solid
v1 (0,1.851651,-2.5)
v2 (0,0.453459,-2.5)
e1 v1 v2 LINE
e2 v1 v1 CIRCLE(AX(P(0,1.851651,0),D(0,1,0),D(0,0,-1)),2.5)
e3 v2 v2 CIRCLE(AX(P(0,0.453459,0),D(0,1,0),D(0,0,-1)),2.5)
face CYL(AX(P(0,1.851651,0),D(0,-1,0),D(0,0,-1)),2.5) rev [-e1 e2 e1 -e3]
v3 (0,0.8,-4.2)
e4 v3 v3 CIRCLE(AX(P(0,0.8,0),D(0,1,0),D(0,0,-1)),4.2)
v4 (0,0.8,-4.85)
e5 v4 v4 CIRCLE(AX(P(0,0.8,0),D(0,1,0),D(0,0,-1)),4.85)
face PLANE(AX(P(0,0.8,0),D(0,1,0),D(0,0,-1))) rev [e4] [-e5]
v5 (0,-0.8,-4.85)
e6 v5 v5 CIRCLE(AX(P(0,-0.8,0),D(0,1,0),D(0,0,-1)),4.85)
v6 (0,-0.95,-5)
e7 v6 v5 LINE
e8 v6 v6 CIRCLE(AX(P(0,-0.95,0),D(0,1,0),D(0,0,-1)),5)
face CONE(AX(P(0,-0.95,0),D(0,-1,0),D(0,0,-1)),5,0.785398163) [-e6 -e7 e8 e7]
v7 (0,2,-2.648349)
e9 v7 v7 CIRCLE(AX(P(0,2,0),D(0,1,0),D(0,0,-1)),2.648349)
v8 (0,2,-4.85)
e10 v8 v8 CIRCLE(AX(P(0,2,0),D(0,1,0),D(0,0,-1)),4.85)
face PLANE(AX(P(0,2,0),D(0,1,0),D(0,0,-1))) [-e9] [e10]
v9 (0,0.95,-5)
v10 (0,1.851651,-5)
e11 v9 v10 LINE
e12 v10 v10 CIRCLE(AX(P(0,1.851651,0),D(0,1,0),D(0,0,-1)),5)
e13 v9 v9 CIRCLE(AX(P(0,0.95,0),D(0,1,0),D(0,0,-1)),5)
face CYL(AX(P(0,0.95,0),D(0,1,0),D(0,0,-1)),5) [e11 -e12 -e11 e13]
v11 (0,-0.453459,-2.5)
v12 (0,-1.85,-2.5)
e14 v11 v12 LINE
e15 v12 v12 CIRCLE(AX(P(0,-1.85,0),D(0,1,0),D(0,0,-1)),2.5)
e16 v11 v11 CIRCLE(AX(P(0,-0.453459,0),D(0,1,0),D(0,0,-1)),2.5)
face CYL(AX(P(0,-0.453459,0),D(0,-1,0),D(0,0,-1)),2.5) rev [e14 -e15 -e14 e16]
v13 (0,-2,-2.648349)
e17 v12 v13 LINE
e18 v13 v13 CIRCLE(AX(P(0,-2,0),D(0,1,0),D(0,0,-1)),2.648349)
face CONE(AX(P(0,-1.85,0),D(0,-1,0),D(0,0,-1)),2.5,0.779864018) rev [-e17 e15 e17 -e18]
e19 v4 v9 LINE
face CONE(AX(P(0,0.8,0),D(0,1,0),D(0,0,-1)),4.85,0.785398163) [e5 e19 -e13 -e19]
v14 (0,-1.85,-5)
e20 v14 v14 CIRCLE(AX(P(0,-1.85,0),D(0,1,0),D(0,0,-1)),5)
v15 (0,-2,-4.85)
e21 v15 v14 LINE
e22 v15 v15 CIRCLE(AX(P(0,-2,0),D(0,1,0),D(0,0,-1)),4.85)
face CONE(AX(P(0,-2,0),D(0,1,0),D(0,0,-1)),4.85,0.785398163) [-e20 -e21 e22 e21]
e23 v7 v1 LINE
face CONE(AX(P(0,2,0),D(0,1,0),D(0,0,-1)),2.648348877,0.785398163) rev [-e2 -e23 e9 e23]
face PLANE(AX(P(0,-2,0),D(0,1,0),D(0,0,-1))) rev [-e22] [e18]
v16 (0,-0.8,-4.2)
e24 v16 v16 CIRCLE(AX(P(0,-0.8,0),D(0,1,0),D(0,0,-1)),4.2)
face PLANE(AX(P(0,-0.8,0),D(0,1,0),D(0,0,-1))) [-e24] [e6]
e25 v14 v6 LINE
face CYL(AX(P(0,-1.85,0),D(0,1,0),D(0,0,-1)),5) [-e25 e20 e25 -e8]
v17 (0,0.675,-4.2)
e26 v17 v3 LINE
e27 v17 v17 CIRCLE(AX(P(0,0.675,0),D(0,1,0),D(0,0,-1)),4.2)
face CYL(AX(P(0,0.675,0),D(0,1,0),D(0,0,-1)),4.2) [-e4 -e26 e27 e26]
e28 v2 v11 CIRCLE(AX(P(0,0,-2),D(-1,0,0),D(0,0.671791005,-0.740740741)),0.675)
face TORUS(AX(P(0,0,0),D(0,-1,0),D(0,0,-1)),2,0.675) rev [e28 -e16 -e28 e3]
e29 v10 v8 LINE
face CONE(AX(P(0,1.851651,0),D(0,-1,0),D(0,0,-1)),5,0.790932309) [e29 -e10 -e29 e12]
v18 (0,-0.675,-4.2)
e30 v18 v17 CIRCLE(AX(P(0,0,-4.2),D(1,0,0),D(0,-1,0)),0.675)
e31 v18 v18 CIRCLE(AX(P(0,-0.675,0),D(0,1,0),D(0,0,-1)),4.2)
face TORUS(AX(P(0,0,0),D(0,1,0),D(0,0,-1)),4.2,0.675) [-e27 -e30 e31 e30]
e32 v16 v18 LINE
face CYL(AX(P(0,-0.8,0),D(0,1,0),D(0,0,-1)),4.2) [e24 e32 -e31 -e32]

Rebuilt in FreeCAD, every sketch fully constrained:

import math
import FreeCAD as App
import Part
import Sketcher
Q = App.Units.Quantity

doc = App.newDocument("Part")
params = doc.addObject("Spreadsheet::Sheet", "Params")
for row, (alias, value) in enumerate([
    ("sketch1_height", "0.9 mm"),
    ("sketch1_width", "0.65 mm"),
    ("revolution_angle", "360 deg"),
], start=1):
    params.set(f"A{row}", alias)
    params.set(f"B{row}", "=" + value)
    params.setAlias(f"B{row}", alias)

body = doc.addObject("PartDesign::Body", "Body")

sketch1 = body.newObject("Sketcher::SketchObject", "Sketch")
sketch1.AttachmentSupport = (doc.getObject("XY_Plane"), [""])
sketch1.MapMode = "FlatFace"
sketch1.addGeometry([
    Part.LineSegment(App.Vector(5, 0.95, 0), App.Vector(5, 1.85, 0)),
    Part.LineSegment(App.Vector(5, 1.85, 0), App.Vector(4.85, 2, 0)),
    Part.LineSegment(App.Vector(4.85, 2, 0), App.Vector(2.65, 2, 0)),
    Part.LineSegment(App.Vector(2.65, 2, 0), App.Vector(2.5, 1.85, 0)),
    Part.LineSegment(App.Vector(2.5, 1.85, 0), App.Vector(2.5, 0.45, 0)),
    Part.ArcOfCircle(Part.Circle(App.Vector(2, 0, 0), App.Vector(0, 0, 1), 0.68), math.radians(-42), math.radians(42)),
    Part.LineSegment(App.Vector(2.5, -0.45, 0), App.Vector(2.5, -1.85, 0)),
    Part.LineSegment(App.Vector(2.5, -1.85, 0), App.Vector(2.65, -2, 0)),
    Part.LineSegment(App.Vector(2.65, -2, 0), App.Vector(4.85, -2, 0)),
    Part.LineSegment(App.Vector(4.85, -2, 0), App.Vector(5, -1.85, 0)),
    Part.LineSegment(App.Vector(5, -1.85, 0), App.Vector(5, -0.95, 0)),
    Part.LineSegment(App.Vector(5, -0.95, 0), App.Vector(4.85, -0.8, 0)),
    Part.LineSegment(App.Vector(4.85, -0.8, 0), App.Vector(4.2, -0.8, 0)),
    Part.LineSegment(App.Vector(4.2, -0.8, 0), App.Vector(4.2, -0.68, 0)),
    Part.ArcOfCircle(Part.Circle(App.Vector(4.2, 0, 0), App.Vector(0, 0, 1), 0.68), math.radians(-90), math.radians(90)),
    Part.LineSegment(App.Vector(4.2, 0.68, 0), App.Vector(4.2, 0.8, 0)),
    Part.LineSegment(App.Vector(4.2, 0.8, 0), App.Vector(4.85, 0.8, 0)),
    Part.LineSegment(App.Vector(4.85, 0.8, 0), App.Vector(5, 0.95, 0)),
], False)
sketch1.addConstraint([
    Sketcher.Constraint("Coincident", 0, 2, 1, 1),
    Sketcher.Constraint("Coincident", 1, 2, 2, 1),
    Sketcher.Constraint("Coincident", 2, 2, 3, 1),
    Sketcher.Constraint("Coincident", 3, 2, 4, 1),
    Sketcher.Constraint("Coincident", 4, 2, 5, 2),
    Sketcher.Constraint("Coincident", 5, 1, 6, 1),
    Sketcher.Constraint("Coincident", 6, 2, 7, 1),
    Sketcher.Constraint("Coincident", 7, 2, 8, 1),
    Sketcher.Constraint("Coincident", 8, 2, 9, 1),
    Sketcher.Constraint("Coincident", 9, 2, 10, 1),
    Sketcher.Constraint("Coincident", 10, 2, 11, 1),
    Sketcher.Constraint("Coincident", 11, 2, 12, 1),
    Sketcher.Constraint("Coincident", 12, 2, 13, 1),
    Sketcher.Constraint("Coincident", 13, 2, 14, 1),
    Sketcher.Constraint("Coincident", 14, 2, 15, 1),
    Sketcher.Constraint("Coincident", 15, 2, 16, 1),
    Sketcher.Constraint("Coincident", 16, 2, 17, 1),
    Sketcher.Constraint("Coincident", 17, 2, 0, 1),
    Sketcher.Constraint("Vertical", 0),
    Sketcher.Constraint("Horizontal", 2),
    Sketcher.Constraint("Vertical", 4),
    Sketcher.Constraint("Vertical", 6),
    Sketcher.Constraint("Horizontal", 8),
    Sketcher.Constraint("Vertical", 10),
    Sketcher.Constraint("Horizontal", 12),
    Sketcher.Constraint("Vertical", 13),
    Sketcher.Constraint("Vertical", 15),
    Sketcher.Constraint("Horizontal", 16),
    Sketcher.Constraint("Equal", 5, 14),
    Sketcher.Constraint("Symmetric", 4, 2, 5, 1, -1),
    Sketcher.Constraint("Symmetric", 2, 2, 7, 2, -1),
    Sketcher.Constraint("Symmetric", 13, 2, 14, 2, -1),
    Sketcher.Constraint("Symmetric", 11, 2, 16, 2, -1),
    Sketcher.Constraint("Symmetric", 10, 2, 17, 2, -1),
    Sketcher.Constraint("Parallel", 3, 9),
    Sketcher.Constraint("Perpendicular", 9, 11),
    Sketcher.Constraint("Perpendicular", 11, 17),
    Sketcher.Constraint("Horizontal", 0, 2, 3, 2),
    Sketcher.Constraint("Horizontal", 6, 2, 9, 2),
    Sketcher.Constraint("Vertical", 1, 2, 8, 2),
    Sketcher.Constraint("Vertical", 8, 2, 11, 2),
    Sketcher.Constraint("Vertical", 14, 3, 12, 2),
    Sketcher.Constraint("DistanceY", 10, 1, 10, 2, Q("0.9 mm")),
    Sketcher.Constraint("DistanceX", -1, 1, 5, 3, Q("2 mm")),
    Sketcher.Constraint("DistanceX", -1, 1, 0, 2, Q("5 mm")),
    Sketcher.Constraint("DistanceY", -1, 1, 1, 2, Q("2 mm")),
    Sketcher.Constraint("Radius", 5, Q("0.675 mm")),
    Sketcher.Constraint("DistanceX", 12, 2, 12, 1, Q("0.65 mm")),
    Sketcher.Constraint("DistanceX", -1, 1, 14, 3, Q("4.2 mm")),
    Sketcher.Constraint("DistanceX", -1, 1, 3, 2, Q("2.5 mm")),
    Sketcher.Constraint("DistanceX", 2, 2, 2, 1, Q("2.201651 mm")),
])
sketch1.setExpression("Constraints[42]", "Params.sketch1_height")
sketch1.setExpression("Constraints[47]", "Params.sketch1_width")
revolution = body.newObject("PartDesign::Revolution", "Revolution")
revolution.Profile = sketch1
revolution.ReferenceAxis = (sketch1, ["V_Axis"])
revolution.setExpression("Angle", "Params.revolution_angle")

doc.recompute()
